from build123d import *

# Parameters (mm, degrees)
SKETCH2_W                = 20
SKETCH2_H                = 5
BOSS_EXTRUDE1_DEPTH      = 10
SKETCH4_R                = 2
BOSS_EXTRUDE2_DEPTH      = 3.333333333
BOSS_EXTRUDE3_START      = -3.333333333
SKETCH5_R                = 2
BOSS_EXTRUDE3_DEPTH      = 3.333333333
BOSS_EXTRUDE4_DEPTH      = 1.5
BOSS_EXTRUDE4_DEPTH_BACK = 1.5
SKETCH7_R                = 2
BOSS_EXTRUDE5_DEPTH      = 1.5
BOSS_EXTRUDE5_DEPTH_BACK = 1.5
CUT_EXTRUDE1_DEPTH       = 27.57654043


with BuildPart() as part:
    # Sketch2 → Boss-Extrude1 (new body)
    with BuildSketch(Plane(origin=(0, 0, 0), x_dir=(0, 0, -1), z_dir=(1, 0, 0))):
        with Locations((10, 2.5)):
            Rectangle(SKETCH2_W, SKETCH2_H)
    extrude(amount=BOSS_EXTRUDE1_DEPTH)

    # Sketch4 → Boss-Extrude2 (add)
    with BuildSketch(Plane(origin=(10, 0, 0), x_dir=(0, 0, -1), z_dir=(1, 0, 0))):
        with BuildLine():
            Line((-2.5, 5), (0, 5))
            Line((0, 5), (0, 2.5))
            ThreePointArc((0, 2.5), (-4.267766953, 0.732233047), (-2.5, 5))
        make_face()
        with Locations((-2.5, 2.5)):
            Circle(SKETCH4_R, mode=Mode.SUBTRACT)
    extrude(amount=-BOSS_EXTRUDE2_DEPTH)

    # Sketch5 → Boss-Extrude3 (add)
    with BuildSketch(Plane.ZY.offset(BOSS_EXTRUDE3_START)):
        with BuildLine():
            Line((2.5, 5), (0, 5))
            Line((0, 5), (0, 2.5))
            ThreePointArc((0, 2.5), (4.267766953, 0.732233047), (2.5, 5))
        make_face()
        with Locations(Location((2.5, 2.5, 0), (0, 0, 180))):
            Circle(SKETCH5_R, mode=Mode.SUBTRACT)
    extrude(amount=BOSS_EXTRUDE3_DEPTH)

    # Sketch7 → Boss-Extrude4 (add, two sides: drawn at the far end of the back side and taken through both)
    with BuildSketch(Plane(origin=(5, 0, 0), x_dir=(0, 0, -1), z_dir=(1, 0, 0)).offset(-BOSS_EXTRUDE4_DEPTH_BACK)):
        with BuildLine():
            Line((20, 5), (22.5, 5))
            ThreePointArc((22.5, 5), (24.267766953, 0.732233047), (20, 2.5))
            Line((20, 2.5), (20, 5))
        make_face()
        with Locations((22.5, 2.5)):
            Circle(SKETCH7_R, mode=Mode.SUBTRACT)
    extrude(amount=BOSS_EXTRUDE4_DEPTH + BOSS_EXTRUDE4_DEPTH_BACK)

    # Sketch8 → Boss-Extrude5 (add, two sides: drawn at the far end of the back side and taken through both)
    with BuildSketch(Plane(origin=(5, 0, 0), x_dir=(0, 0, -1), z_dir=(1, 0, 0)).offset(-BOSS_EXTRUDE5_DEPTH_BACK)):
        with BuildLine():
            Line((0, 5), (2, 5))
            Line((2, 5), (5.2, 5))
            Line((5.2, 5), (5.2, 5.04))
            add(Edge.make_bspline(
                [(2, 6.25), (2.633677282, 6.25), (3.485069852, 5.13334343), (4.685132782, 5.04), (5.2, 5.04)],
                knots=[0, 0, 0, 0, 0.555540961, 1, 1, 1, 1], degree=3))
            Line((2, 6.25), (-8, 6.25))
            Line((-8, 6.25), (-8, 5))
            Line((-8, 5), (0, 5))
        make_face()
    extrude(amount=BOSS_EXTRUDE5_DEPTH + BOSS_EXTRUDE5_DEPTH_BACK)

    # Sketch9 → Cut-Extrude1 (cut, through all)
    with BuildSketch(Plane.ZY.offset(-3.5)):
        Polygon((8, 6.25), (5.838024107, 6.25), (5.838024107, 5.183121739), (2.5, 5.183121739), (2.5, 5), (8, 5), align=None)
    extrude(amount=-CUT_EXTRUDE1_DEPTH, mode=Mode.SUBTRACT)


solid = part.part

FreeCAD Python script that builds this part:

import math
import FreeCAD as App
import Part
import Sketcher

V = App.Vector

doc = App.newDocument("Part")
body = doc.addObject("PartDesign::Body", "Body")

# Sketch on YZ plane
sketch1 = body.newObject("Sketcher::SketchObject", "Sketch")
sketch1.AttachmentSupport = (doc.getObject("YZ_Plane"), [""])
sketch1.MapMode = "FlatFace"
sketch1.addGeometry([
    Part.LineSegment(V(5, 0, 0), V(0, 0, 0)),
    Part.LineSegment(V(0, 0, 0), V(0, -20, 0)),
    Part.LineSegment(V(0, -20, 0), V(5, -20, 0)),
    Part.LineSegment(V(5, -20, 0), V(5, 0, 0)),
], False)
sketch1.addConstraint([
    Sketcher.Constraint("Coincident", 0, 2, 1, 1),
    Sketcher.Constraint("Coincident", 1, 2, 2, 1),
    Sketcher.Constraint("Coincident", 2, 2, 3, 1),
    Sketcher.Constraint("Coincident", 3, 2, 0, 1),
    Sketcher.Constraint("Horizontal", 0),
    Sketcher.Constraint("Vertical", 1),
    Sketcher.Constraint("Horizontal", 2),
    Sketcher.Constraint("Vertical", 3),
    Sketcher.Constraint("Coincident", 0, 2, -1, 1),
    Sketcher.Constraint("DistanceX", 0, 2, 0, 1, 5.0),
    Sketcher.Constraint("DistanceY", 1, 2, 1, 1, 20.0),
])
pad1 = body.newObject("PartDesign::Pad", "Pad")
pad1.Profile = sketch1
pad1.Length = 10

# Sketch on YZ plane
sketch2 = body.newObject("Sketcher::SketchObject", "Sketch001")
sketch2.AttachmentSupport = (doc.getObject("YZ_Plane"), [""])
sketch2.MapMode = "FlatFace"
sketch2.AttachmentOffset = App.Placement(V(0, 0, 10), App.Rotation())
sketch2.addGeometry([
    Part.LineSegment(V(5, 0, 0), V(5, 2.5, 0)),
    Part.ArcOfCircle(Part.Circle(V(2.5, 2.5, 0), V(0, 0, 1), 2.5), math.radians(0), math.radians(270)),
    Part.LineSegment(V(2.5, 0, 0), V(5, 0, 0)),
    Part.Circle(V(2.5, 2.5, 0), V(0, 0, 1), 2),
], False)
sketch2.addConstraint([
    Sketcher.Constraint("Tangent", 0, 2, 1, 1),
    Sketcher.Constraint("Tangent", 1, 2, 2, 1),
    Sketcher.Constraint("Coincident", 2, 2, 0, 1),
    Sketcher.Constraint("Vertical", 0),
    Sketcher.Constraint("Horizontal", 2),
    Sketcher.Constraint("Coincident", 3, 3, 1, 3),
    Sketcher.Constraint("PointOnObject", 1, 2, -1),
    Sketcher.Constraint("Diameter", 3, 4.0),
    Sketcher.Constraint("Radius", 1, 2.5),
    Sketcher.Constraint("DistanceX", -1, 1, 0, 2, 5.0),
])
pad2 = body.newObject("PartDesign::Pad", "Pad001")
pad2.Profile = sketch2
pad2.Length = 3.333333
pad2.Reversed = True

# Sketch on YZ plane
sketch3 = body.newObject("Sketcher::SketchObject", "Sketch002")
sketch3.AttachmentSupport = (doc.getObject("YZ_Plane"), [""])
sketch3.MapMode = "FlatFace"
sketch3.AttachmentOffset = App.Placement(V(0, 0, 3.333333), App.Rotation())
sketch3.addGeometry([
    Part.LineSegment(V(5, 2.5, 0), V(5, 0, 0)),
    Part.LineSegment(V(5, 0, 0), V(2.5, 0, 0)),
    Part.ArcOfCircle(Part.Circle(V(2.5, 2.5, 0), V(0, 0, 1), 2.5), math.radians(0), math.radians(270)),
    Part.Circle(V(2.5, 2.5, 0), V(0, 0, 1), 2),
], False)
sketch3.addConstraint([
    Sketcher.Constraint("Coincident", 0, 2, 1, 1),
    Sketcher.Constraint("Tangent", 1, 2, 2, 2),
    Sketcher.Constraint("Tangent", 2, 1, 0, 1),
    Sketcher.Constraint("Vertical", 0),
    Sketcher.Constraint("Horizontal", 1),
    Sketcher.Constraint("Coincident", 3, 3, 2, 3),
    Sketcher.Constraint("PointOnObject", 0, 2, -1),
    Sketcher.Constraint("Diameter", 3, 4.0),
    Sketcher.Constraint("Radius", 2, 2.5),
    Sketcher.Constraint("DistanceX", -1, 1, 0, 2, 5.0),
])
pad3 = body.newObject("PartDesign::Pad", "Pad002")
pad3.Profile = sketch3
pad3.Length = 3.333333
pad3.Reversed = True

# Sketch on YZ plane
sketch4 = body.newObject("Sketcher::SketchObject", "Sketch003")
sketch4.AttachmentSupport = (doc.getObject("YZ_Plane"), [""])
sketch4.MapMode = "FlatFace"
sketch4.AttachmentOffset = App.Placement(V(0, 0, 5), App.Rotation())
sketch4.addGeometry([
    Part.LineSegment(V(5, -22.5, 0), V(5, -20, 0)),
    Part.LineSegment(V(5, -20, 0), V(2.5, -20, 0)),
    Part.ArcOfCircle(Part.Circle(V(2.5, -22.5, 0), V(0, 0, 1), 2.5), math.radians(90), math.radians(360)),
    Part.Circle(V(2.5, -22.5, 0), V(0, 0, 1), 2),
], False)
sketch4.addConstraint([
    Sketcher.Constraint("Coincident", 0, 2, 1, 1),
    Sketcher.Constraint("Tangent", 1, 2, 2, 1),
    Sketcher.Constraint("Tangent", 2, 2, 0, 1),
    Sketcher.Constraint("Vertical", 0),
    Sketcher.Constraint("Horizontal", 1),
    Sketcher.Constraint("Coincident", 3, 3, 2, 3),
    Sketcher.Constraint("Diameter", 3, 4.0),
    Sketcher.Constraint("Radius", 2, 2.5),
    Sketcher.Constraint("DistanceX", -1, 1, 0, 2, 5.0),
    Sketcher.Constraint("DistanceY", 0, 2, -1, 1, 20.0),
])
pad4 = body.newObject("PartDesign::Pad", "Pad003")
pad4.Profile = sketch4
pad4.Type = "TwoLengths"
pad4.Length = 1.5
pad4.Length2 = 1.5

# Sketch on YZ plane
sketch5 = body.newObject("Sketcher::SketchObject", "Sketch004")
sketch5.AttachmentSupport = (doc.getObject("YZ_Plane"), [""])
sketch5.MapMode = "FlatFace"
sketch5.AttachmentOffset = App.Placement(V(0, 0, 5), App.Rotation())
sketch5.addGeometry([
    Part.LineSegment(V(5, -5.2, 0), V(5.04, -5.2, 0)),  # 0
    Part.BSplineCurve([V(6.25, -2, 0), V(6.25, -2.633677, 0), V(5.133343, -3.48507, 0), V(5.04, -4.685133, 0), V(5.04, -5.2, 0)], [4, 1, 4], [0, 0.555540961, 1], False, 3, [1, 1, 1, 1, 1], False),  # 1
    Part.LineSegment(V(6.25, -2, 0), V(6.25, 8, 0)),  # 2
    Part.LineSegment(V(6.25, 8, 0), V(5, 8, 0)),  # 3
    Part.LineSegment(V(5, 8, 0), V(5, -5.2, 0)),  # 4
], False)
sketch5.addConstraint([
    Sketcher.Constraint("Block", 1),
    Sketcher.Constraint("Coincident", 0, 2, 1, 2),
    Sketcher.Constraint("Coincident", 1, 1, 2, 1),
    Sketcher.Constraint("Coincident", 2, 2, 3, 1),
    Sketcher.Constraint("Coincident", 3, 2, 4, 1),
    Sketcher.Constraint("Coincident", 4, 2, 0, 1),
    Sketcher.Constraint("Horizontal", 0),
    Sketcher.Constraint("Vertical", 2),
    Sketcher.Constraint("Horizontal", 3),
    Sketcher.Constraint("Vertical", 4),
    Sketcher.Constraint("DistanceY", 2, 1, 2, 2, 10.0),
    Sketcher.Constraint("DistanceX", -1, 1, 3, 2, 5.0),
])
pad5 = body.newObject("PartDesign::Pad", "Pad004")
pad5.Profile = sketch5
pad5.Type = "TwoLengths"
pad5.Length = 1.5
pad5.Length2 = 1.5

# Sketch on YZ plane
sketch6 = body.newObject("Sketcher::SketchObject", "Sketch005")
sketch6.AttachmentSupport = (doc.getObject("YZ_Plane"), [""])
sketch6.MapMode = "FlatFace"
sketch6.AttachmentOffset = App.Placement(V(0, 0, 3.5), App.Rotation())
sketch6.addGeometry([
    Part.LineSegment(V(6.25, 8, 0), V(6.25, 5.838024, 0)),  # 0
    Part.LineSegment(V(6.25, 5.838024, 0), V(5.183122, 5.838024, 0)),  # 1
    Part.LineSegment(V(5.183122, 5.838024, 0), V(5.183122, 2.5, 0)),  # 2
    Part.LineSegment(V(5.183122, 2.5, 0), V(5, 2.5, 0)),  # 3
    Part.LineSegment(V(5, 2.5, 0), V(5, 8, 0)),  # 4
    Part.LineSegment(V(5, 8, 0), V(6.25, 8, 0)),  # 5
], False)
sketch6.addConstraint([
    Sketcher.Constraint("Coincident", 0, 2, 1, 1),
    Sketcher.Constraint("Coincident", 1, 2, 2, 1),
    Sketcher.Constraint("Coincident", 2, 2, 3, 1),
    Sketcher.Constraint("Coincident", 3, 2, 4, 1),
    Sketcher.Constraint("Coincident", 4, 2, 5, 1),
    Sketcher.Constraint("Coincident", 5, 2, 0, 1),
    Sketcher.Constraint("Vertical", 0),
    Sketcher.Constraint("Horizontal", 1),
    Sketcher.Constraint("Vertical", 2),
    Sketcher.Constraint("Horizontal", 3),
    Sketcher.Constraint("Vertical", 4),
    Sketcher.Constraint("Horizontal", 5),
    Sketcher.Constraint("DistanceY", 4, 1, 4, 2, 5.5),
    Sketcher.Constraint("DistanceX", -1, 1, 3, 2, 5.0),
    Sketcher.Constraint("DistanceY", -1, 1, 4, 2, 8.0),
    Sketcher.Constraint("DistanceX", 5, 1, 5, 2, 1.25),
    Sketcher.Constraint("DistanceX", 1, 2, 1, 1, 1.066878),
    Sketcher.Constraint("DistanceY", 0, 2, 0, 1, 2.161976),
])
pocket1 = body.newObject("PartDesign::Pocket", "Pocket")
pocket1.Profile = sketch6
pocket1.Type = "ThroughAll"
pocket1.Reversed = True

doc.recompute()
